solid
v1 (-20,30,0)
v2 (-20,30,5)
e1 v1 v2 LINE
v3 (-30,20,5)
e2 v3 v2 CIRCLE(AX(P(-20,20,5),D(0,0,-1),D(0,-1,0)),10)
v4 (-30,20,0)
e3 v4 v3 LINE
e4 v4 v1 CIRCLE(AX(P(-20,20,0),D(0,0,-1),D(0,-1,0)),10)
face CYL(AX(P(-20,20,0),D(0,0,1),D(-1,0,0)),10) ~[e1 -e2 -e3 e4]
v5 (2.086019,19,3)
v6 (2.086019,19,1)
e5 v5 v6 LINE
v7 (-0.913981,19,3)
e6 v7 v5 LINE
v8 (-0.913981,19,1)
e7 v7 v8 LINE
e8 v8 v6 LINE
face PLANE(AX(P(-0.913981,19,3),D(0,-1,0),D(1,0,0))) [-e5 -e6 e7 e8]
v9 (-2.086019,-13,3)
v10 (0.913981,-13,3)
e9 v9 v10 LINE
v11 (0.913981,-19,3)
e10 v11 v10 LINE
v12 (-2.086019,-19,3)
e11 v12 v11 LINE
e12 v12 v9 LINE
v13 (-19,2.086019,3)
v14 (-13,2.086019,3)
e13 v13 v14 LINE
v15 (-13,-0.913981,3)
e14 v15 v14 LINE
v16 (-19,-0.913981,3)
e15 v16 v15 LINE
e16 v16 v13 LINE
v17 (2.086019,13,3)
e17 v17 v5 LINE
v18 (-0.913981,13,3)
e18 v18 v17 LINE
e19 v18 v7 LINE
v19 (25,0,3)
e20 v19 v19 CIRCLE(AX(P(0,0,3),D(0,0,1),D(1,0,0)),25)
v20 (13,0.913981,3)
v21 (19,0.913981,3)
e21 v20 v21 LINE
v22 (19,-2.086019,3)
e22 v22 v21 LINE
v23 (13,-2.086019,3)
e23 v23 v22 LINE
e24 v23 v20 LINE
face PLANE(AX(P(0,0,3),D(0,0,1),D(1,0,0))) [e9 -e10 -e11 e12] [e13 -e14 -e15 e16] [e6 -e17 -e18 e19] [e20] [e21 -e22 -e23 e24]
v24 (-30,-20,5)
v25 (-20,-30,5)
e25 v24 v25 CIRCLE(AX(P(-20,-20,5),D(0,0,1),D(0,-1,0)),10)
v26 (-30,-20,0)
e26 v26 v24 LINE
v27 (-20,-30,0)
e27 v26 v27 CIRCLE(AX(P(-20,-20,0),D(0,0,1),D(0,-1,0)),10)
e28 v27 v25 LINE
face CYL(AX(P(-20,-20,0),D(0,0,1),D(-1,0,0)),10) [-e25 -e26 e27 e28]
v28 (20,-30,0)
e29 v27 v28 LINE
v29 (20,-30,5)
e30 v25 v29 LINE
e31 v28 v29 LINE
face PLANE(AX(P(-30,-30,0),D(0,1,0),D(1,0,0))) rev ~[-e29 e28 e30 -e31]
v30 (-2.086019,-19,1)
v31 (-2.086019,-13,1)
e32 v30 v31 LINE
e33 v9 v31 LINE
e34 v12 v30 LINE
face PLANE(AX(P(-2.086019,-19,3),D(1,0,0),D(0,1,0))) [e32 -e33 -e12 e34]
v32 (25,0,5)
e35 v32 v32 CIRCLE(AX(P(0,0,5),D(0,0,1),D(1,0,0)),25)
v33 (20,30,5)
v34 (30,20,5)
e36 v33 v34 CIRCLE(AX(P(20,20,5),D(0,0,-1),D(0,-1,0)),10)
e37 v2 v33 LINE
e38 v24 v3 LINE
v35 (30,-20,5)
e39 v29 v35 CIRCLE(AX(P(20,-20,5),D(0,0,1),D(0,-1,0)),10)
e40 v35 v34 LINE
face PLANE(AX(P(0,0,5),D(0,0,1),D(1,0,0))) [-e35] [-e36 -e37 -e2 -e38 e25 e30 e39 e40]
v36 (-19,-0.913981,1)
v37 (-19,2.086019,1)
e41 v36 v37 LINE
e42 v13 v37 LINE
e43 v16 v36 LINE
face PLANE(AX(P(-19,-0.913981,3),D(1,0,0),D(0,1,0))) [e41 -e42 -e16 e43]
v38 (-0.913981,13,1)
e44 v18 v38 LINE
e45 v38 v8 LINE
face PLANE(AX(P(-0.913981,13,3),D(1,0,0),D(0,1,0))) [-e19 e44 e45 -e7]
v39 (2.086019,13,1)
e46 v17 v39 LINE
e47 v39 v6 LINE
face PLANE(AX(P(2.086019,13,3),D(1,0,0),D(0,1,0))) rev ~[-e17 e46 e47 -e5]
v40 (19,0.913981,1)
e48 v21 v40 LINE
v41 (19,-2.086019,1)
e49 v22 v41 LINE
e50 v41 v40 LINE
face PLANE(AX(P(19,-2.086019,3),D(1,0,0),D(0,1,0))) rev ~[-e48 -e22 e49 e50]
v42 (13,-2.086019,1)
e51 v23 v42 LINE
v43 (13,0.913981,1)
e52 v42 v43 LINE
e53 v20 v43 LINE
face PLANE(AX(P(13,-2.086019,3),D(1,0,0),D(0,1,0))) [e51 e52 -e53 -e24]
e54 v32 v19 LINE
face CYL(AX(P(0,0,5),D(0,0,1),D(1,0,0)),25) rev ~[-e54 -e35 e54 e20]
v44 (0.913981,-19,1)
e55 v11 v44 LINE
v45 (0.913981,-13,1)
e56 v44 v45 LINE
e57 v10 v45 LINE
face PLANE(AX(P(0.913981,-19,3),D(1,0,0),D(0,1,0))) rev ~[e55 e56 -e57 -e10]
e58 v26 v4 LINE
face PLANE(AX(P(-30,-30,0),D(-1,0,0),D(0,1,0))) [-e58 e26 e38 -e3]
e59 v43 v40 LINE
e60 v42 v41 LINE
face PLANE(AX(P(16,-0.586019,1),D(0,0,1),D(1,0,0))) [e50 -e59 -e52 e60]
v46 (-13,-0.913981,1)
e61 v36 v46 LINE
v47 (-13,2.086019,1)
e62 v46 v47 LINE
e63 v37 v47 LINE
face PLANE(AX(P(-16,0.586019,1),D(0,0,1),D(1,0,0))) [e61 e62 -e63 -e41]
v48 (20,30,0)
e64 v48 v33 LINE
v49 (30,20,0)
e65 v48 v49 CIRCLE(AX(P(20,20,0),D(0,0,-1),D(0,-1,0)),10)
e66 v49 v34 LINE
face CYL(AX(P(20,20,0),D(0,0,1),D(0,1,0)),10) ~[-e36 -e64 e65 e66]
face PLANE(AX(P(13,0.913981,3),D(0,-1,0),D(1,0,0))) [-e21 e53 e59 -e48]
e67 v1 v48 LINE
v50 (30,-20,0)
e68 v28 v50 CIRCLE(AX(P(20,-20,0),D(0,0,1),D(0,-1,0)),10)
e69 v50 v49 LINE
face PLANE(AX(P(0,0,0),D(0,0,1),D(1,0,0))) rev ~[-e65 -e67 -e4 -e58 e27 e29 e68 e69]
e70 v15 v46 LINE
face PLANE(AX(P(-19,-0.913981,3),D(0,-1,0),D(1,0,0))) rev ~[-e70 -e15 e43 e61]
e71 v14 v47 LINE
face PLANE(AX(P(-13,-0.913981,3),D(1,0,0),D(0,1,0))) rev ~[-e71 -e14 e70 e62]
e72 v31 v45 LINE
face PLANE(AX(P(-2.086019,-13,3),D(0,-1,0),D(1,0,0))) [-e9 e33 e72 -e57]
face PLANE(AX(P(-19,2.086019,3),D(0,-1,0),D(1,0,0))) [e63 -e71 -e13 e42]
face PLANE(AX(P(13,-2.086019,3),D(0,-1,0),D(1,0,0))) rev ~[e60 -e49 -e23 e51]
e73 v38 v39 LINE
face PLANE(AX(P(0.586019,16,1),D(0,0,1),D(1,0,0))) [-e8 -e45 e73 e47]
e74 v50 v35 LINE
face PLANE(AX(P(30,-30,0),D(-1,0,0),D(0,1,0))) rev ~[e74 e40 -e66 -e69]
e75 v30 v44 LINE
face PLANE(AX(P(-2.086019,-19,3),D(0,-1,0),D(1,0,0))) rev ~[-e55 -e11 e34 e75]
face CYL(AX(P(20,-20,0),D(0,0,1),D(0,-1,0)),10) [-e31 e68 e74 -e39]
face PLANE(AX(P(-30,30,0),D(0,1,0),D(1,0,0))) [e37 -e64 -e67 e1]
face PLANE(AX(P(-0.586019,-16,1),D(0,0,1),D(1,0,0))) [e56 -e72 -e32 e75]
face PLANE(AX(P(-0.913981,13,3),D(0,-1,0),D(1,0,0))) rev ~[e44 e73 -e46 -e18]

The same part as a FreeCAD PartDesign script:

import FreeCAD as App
import Part
import Sketcher


def edges_at(feature, points):
    """Names of the edges that pass closest to the given points."""
    edges = feature.Shape.Edges
    near = lambda p: min(range(len(edges)), key=lambda i: edges[i].distToShape(Part.Vertex(*p))[0])
    return sorted({f"Edge{near(p) + 1}" for p in points})

doc = App.newDocument("Part")
params = doc.addObject("Spreadsheet::Sheet", "Params")
for row, (alias, value) in enumerate([
    ("sketch1_width", "60 mm"),
    ("pad1_length", "5 mm"),
    ("sketch2_diameter", "50 mm"),
    ("pocket1_length", "2 mm"),
    ("sketch3_width", "3 mm"),
    ("sketch3_width2", "6 mm"),
    ("pocket2_length", "2 mm"),
    ("pocket2_length2", "2 mm"),
    ("fillet_radius", "10 mm"),
], start=1):
    params.set(f"A{row}", alias)
    params.set(f"B{row}", "=" + value)
    params.setAlias(f"B{row}", alias)

body = doc.addObject("PartDesign::Body", "Body")

# Sketch on XY plane
sketch1 = body.newObject("Sketcher::SketchObject", "Sketch")
sketch1.AttachmentSupport = (doc.getObject("XY_Plane"), [""])
sketch1.MapMode = "FlatFace"
sketch1.addGeometry(Part.LineSegment(App.Vector(-30, 30, 0), App.Vector(-30, -30, 0)), False)
sketch1.addGeometry(Part.LineSegment(App.Vector(-30, -30, 0), App.Vector(30, -30, 0)), False)
sketch1.addGeometry(Part.LineSegment(App.Vector(30, -30, 0), App.Vector(30, 30, 0)), False)
sketch1.addGeometry(Part.LineSegment(App.Vector(30, 30, 0), App.Vector(-30, 30, 0)), False)
sketch1.addConstraint(Sketcher.Constraint("Coincident", 0, 2, 1, 1))
sketch1.addConstraint(Sketcher.Constraint("Coincident", 1, 2, 2, 1))
sketch1.addConstraint(Sketcher.Constraint("Coincident", 2, 2, 3, 1))
sketch1.addConstraint(Sketcher.Constraint("Coincident", 3, 2, 0, 1))
sketch1.addConstraint(Sketcher.Constraint("Vertical", 0))
sketch1.addConstraint(Sketcher.Constraint("Horizontal", 1))
sketch1.addConstraint(Sketcher.Constraint("Vertical", 2))
sketch1.addConstraint(Sketcher.Constraint("Horizontal", 3))
sketch1.addConstraint(Sketcher.Constraint("Symmetric", 0, 2, 2, 2, -1, 1))
sketch1.addConstraint(Sketcher.Constraint("Equal", 3, 0))
sketch1.addConstraint(Sketcher.Constraint("DistanceX", 1, 1, 1, 2, 60.0))
sketch1.setExpression("Constraints[10]", "Params.sketch1_width")
pad1 = body.newObject("PartDesign::Pad", "Pad")
pad1.Profile = sketch1
pad1.setExpression("Length", "Params.pad1_length")

# Sketch on XY plane
sketch2 = body.newObject("Sketcher::SketchObject", "Sketch001")
sketch2.AttachmentSupport = (doc.getObject("XY_Plane"), [""])
sketch2.MapMode = "FlatFace"
sketch2.AttachmentOffset = App.Placement(App.Vector(0, 0, 5), App.Rotation())
sketch2.addGeometry(Part.Circle(App.Vector(0, 0, 0), App.Vector(0, 0, 1), 25), False)
sketch2.addConstraint(Sketcher.Constraint("Coincident", 0, 3, -1, 1))
sketch2.addConstraint(Sketcher.Constraint("Diameter", 0, 50.0))
sketch2.setExpression("Constraints[1]", "Params.sketch2_diameter")
pocket1 = body.newObject("PartDesign::Pocket", "Pocket")
pocket1.Profile = sketch2
pocket1.setExpression("Length", "Params.pocket1_length")

# Sketch on XY plane
sketch3 = body.newObject("Sketcher::SketchObject", "Sketch002")
sketch3.AttachmentSupport = (doc.getObject("XY_Plane"), [""])
sketch3.MapMode = "FlatFace"
sketch3.AttachmentOffset = App.Placement(App.Vector(0, 0, 3), App.Rotation())
sketch3.addGeometry(Part.LineSegment(App.Vector(-2.086019, -13, 0), App.Vector(-2.086019, -19, 0)), False)
sketch3.addGeometry(Part.LineSegment(App.Vector(-2.086019, -19, 0), App.Vector(0.913981, -19, 0)), False)
sketch3.addGeometry(Part.LineSegment(App.Vector(0.913981, -19, 0), App.Vector(0.913981, -13, 0)), False)
sketch3.addGeometry(Part.LineSegment(App.Vector(0.913981, -13, 0), App.Vector(-2.086019, -13, 0)), False)
sketch3.addGeometry(Part.LineSegment(App.Vector(-19, 2.086019, 0), App.Vector(-19, -0.913981, 0)), False)
sketch3.addGeometry(Part.LineSegment(App.Vector(-19, -0.913981, 0), App.Vector(-13, -0.913981, 0)), False)
sketch3.addGeometry(Part.LineSegment(App.Vector(-13, -0.913981, 0), App.Vector(-13, 2.086019, 0)), False)
sketch3.addGeometry(Part.LineSegment(App.Vector(-13, 2.086019, 0), App.Vector(-19, 2.086019, 0)), False)
sketch3.addGeometry(Part.LineSegment(App.Vector(-0.913981, 19, 0), App.Vector(-0.913981, 13, 0)), False)
sketch3.addGeometry(Part.LineSegment(App.Vector(-0.913981, 13, 0), App.Vector(2.086019, 13, 0)), False)
sketch3.addGeometry(Part.LineSegment(App.Vector(2.086019, 13, 0), App.Vector(2.086019, 19, 0)), False)
sketch3.addGeometry(Part.LineSegment(App.Vector(2.086019, 19, 0), App.Vector(-0.913981, 19, 0)), False)
sketch3.addGeometry(Part.LineSegment(App.Vector(13, 0.913981, 0), App.Vector(13, -2.086019, 0)), False)
sketch3.addGeometry(Part.LineSegment(App.Vector(13, -2.086019, 0), App.Vector(19, -2.086019, 0)), False)
sketch3.addGeometry(Part.LineSegment(App.Vector(19, -2.086019, 0), App.Vector(19, 0.913981, 0)), False)
sketch3.addGeometry(Part.LineSegment(App.Vector(19, 0.913981, 0), App.Vector(13, 0.913981, 0)), False)
sketch3.addConstraint(Sketcher.Constraint("Coincident", 0, 2, 1, 1))
sketch3.addConstraint(Sketcher.Constraint("Coincident", 1, 2, 2, 1))
sketch3.addConstraint(Sketcher.Constraint("Coincident", 2, 2, 3, 1))
sketch3.addConstraint(Sketcher.Constraint("Coincident", 3, 2, 0, 1))
sketch3.addConstraint(Sketcher.Constraint("Coincident", 4, 2, 5, 1))
sketch3.addConstraint(Sketcher.Constraint("Coincident", 5, 2, 6, 1))
sketch3.addConstraint(Sketcher.Constraint("Coincident", 6, 2, 7, 1))
sketch3.addConstraint(Sketcher.Constraint("Coincident", 7, 2, 4, 1))
sketch3.addConstraint(Sketcher.Constraint("Coincident", 8, 2, 9, 1))
sketch3.addConstraint(Sketcher.Constraint("Coincident", 9, 2, 10, 1))
sketch3.addConstraint(Sketcher.Constraint("Coincident", 10, 2, 11, 1))
sketch3.addConstraint(Sketcher.Constraint("Coincident", 11, 2, 8, 1))
sketch3.addConstraint(Sketcher.Constraint("Coincident", 12, 2, 13, 1))
sketch3.addConstraint(Sketcher.Constraint("Coincident", 13, 2, 14, 1))
sketch3.addConstraint(Sketcher.Constraint("Coincident", 14, 2, 15, 1))
sketch3.addConstraint(Sketcher.Constraint("Coincident", 15, 2, 12, 1))
sketch3.addConstraint(Sketcher.Constraint("Vertical", 0))
sketch3.addConstraint(Sketcher.Constraint("Horizontal", 1))
sketch3.addConstraint(Sketcher.Constraint("Vertical", 2))
sketch3.addConstraint(Sketcher.Constraint("Horizontal", 3))
sketch3.addConstraint(Sketcher.Constraint("Vertical", 4))
sketch3.addConstraint(Sketcher.Constraint("Horizontal", 5))
sketch3.addConstraint(Sketcher.Constraint("Vertical", 6))
sketch3.addConstraint(Sketcher.Constraint("Horizontal", 7))
sketch3.addConstraint(Sketcher.Constraint("Vertical", 8))
sketch3.addConstraint(Sketcher.Constraint("Horizontal", 9))
sketch3.addConstraint(Sketcher.Constraint("Vertical", 10))
sketch3.addConstraint(Sketcher.Constraint("Horizontal", 11))
sketch3.addConstraint(Sketcher.Constraint("Vertical", 12))
sketch3.addConstraint(Sketcher.Constraint("Horizontal", 13))
sketch3.addConstraint(Sketcher.Constraint("Vertical", 14))
sketch3.addConstraint(Sketcher.Constraint("Horizontal", 15))
sketch3.addConstraint(Sketcher.Constraint("Symmetric", 2, 2, 8, 2, -1, 1))
sketch3.addConstraint(Sketcher.Constraint("Symmetric", 0, 2, 10, 2, -1, 1))
sketch3.addConstraint(Sketcher.Constraint("Symmetric", 6, 2, 12, 2, -1, 1))
sketch3.addConstraint(Sketcher.Constraint("Symmetric", 4, 2, 14, 2, -1, 1))
sketch3.addConstraint(Sketcher.Constraint("Equal", 15, 0))
sketch3.addConstraint(Sketcher.Constraint("Equal", 11, 4))
sketch3.addConstraint(Sketcher.Constraint("DistanceX", 1, 1, 1, 2, 3.0))
sketch3.addConstraint(Sketcher.Constraint("DistanceX", 5, 1, 5, 2, 6.0))
sketch3.addConstraint(Sketcher.Constraint("DistanceY", 0, 2, -1, 1, 19.0))
sketch3.addConstraint(Sketcher.Constraint("DistanceX", 4, 2, -1, 1, 19.0))
sketch3.addConstraint(Sketcher.Constraint("DistanceX", 0, 2, -1, 1, 2.086019))
sketch3.addConstraint(Sketcher.Constraint("DistanceY", 4, 2, -1, 1, 0.913981))
sketch3.setExpression("Constraints[38]", "Params.sketch3_width")
sketch3.setExpression("Constraints[39]", "Params.sketch3_width2")
pocket2 = body.newObject("PartDesign::Pocket", "Pocket001")
pocket2.Profile = sketch3
pocket2.Type = "TwoLengths"
pocket2.setExpression("Length", "Params.pocket2_length")
pocket2.setExpression("Length2", "Params.pocket2_length2")
pocket2.Reversed = True
doc.recompute()

fillet = body.newObject("PartDesign::Fillet", "Fillet")
fillet.Base = (pocket2, edges_at(pocket2, [
    (-30, 30, 2.5),
    (-30, -30, 2.5),
    (30, -30, 2.5),
    (30, 30, 2.5),
]))
fillet.setExpression("Radius", "Params.fillet_radius")

doc.recompute()
